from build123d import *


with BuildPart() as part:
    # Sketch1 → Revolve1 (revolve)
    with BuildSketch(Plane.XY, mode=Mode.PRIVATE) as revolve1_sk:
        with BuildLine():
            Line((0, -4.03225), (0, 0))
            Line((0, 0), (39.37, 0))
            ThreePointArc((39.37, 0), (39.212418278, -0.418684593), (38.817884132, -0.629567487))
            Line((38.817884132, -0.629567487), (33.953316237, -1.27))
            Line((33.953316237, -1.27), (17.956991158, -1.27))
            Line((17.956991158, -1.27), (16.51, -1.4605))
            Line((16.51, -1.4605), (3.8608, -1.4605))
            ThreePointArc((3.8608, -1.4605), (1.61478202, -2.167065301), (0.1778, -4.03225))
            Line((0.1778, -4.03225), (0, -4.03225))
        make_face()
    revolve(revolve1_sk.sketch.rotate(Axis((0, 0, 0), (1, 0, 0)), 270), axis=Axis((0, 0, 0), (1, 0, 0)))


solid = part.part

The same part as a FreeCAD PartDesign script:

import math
import FreeCAD as App
import Part
import Sketcher

V = App.Vector
Q = App.Units.Quantity

doc = App.newDocument("Part")
body = doc.addObject("PartDesign::Body", "Body")

# Sketch on XY plane
sketch1 = doc.addObject("Sketcher::SketchObject", "Sketch")
body.addObject(sketch1)
sketch1.AttachmentSupport = (doc.XY_Plane, [""])
sketch1.MapMode = "FlatFace"
sketch1.addGeometry(Part.LineSegment(V(0, 0, 0), V(0, -4.03, 0)), False)
sketch1.addGeometry(Part.LineSegment(V(0, -4.03, 0), V(0.18, -4.03, 0)), False)
sketch1.addGeometry(Part.ArcOfCircle(Part.Circle(V(3.86, -5.38, 0), V(0, 0, 1), 3.92), math.radians(90), math.radians(160)), False)
sketch1.addGeometry(Part.LineSegment(V(3.86, -1.46, 0), V(16.51, -1.46, 0)), False)
sketch1.addGeometry(Part.LineSegment(V(16.51, -1.46, 0), V(17.96, -1.27, 0)), False)
sketch1.addGeometry(Part.LineSegment(V(17.96, -1.27, 0), V(33.95, -1.27, 0)), False)
sketch1.addGeometry(Part.LineSegment(V(33.95, -1.27, 0), V(38.82, -0.63, 0)), False)
sketch1.addGeometry(Part.ArcOfCircle(Part.Circle(V(38.74, 0, 0), V(0, 0, 1), 0.63), math.radians(-83), math.radians(0)), False)
sketch1.addGeometry(Part.LineSegment(V(39.37, 0, 0), V(0, 0, 0)), False)
sketch1.addConstraint(Sketcher.Constraint("Coincident", 0, 2, 1, 1))
sketch1.addConstraint(Sketcher.Constraint("Coincident", 1, 2, 2, 2))
sketch1.addConstraint(Sketcher.Constraint("Tangent", 2, 1, 3, 1))
sketch1.addConstraint(Sketcher.Constraint("Coincident", 3, 2, 4, 1))
sketch1.addConstraint(Sketcher.Constraint("Coincident", 4, 2, 5, 1))
sketch1.addConstraint(Sketcher.Constraint("Coincident", 5, 2, 6, 1))
sketch1.addConstraint(Sketcher.Constraint("Tangent", 6, 2, 7, 1))
sketch1.addConstraint(Sketcher.Constraint("Coincident", 7, 2, 8, 1))
sketch1.addConstraint(Sketcher.Constraint("Coincident", 8, 2, 0, 1))
sketch1.addConstraint(Sketcher.Constraint("Vertical", 0))
sketch1.addConstraint(Sketcher.Constraint("Horizontal", 1))
sketch1.addConstraint(Sketcher.Constraint("Horizontal", 3))
sketch1.addConstraint(Sketcher.Constraint("Horizontal", 5))
sketch1.addConstraint(Sketcher.Constraint("Horizontal", 8))
sketch1.addConstraint(Sketcher.Constraint("Coincident", 8, 2, -1, 1))
sketch1.addConstraint(Sketcher.Constraint("PointOnObject", 7, 3, -1))
sketch1.addConstraint(Sketcher.Constraint("Parallel", 4, 6))
sketch1.addConstraint(Sketcher.Constraint("Radius", 7, Q("0.025 in")))
sketch1.addConstraint(Sketcher.Constraint("DistanceX", 8, 2, 8, 1, Q("1.55 in")))
sketch1.addConstraint(Sketcher.Constraint("Angle", 4, Q("7.5 deg")))
sketch1.addConstraint(Sketcher.Constraint("DistanceX", 3, 2, 7, 2, Q("0.9 in")))
sketch1.addConstraint(Sketcher.Constraint("DistanceX", 1, 1, 1, 2, Q("0.007 in")))
sketch1.addConstraint(Sketcher.Constraint("DistanceX", 3, 1, 3, 2, Q("0.498 in")))
sketch1.addConstraint(Sketcher.Constraint("DistanceY", 4, 2, -1, 1, Q("0.05 in")))
sketch1.addConstraint(Sketcher.Constraint("DistanceY", 2, 1, -1, 1, Q("0.0575 in")))
sketch1.addConstraint(Sketcher.Constraint("Radius", 2, Q("3.923085 mm")))
revolution = doc.addObject("PartDesign::Revolution", "Revolution")
body.addObject(revolution)
revolution.Profile = sketch1
revolution.ReferenceAxis = (sketch1, ["H_Axis"])
revolution.Angle = 360

doc.recompute()
